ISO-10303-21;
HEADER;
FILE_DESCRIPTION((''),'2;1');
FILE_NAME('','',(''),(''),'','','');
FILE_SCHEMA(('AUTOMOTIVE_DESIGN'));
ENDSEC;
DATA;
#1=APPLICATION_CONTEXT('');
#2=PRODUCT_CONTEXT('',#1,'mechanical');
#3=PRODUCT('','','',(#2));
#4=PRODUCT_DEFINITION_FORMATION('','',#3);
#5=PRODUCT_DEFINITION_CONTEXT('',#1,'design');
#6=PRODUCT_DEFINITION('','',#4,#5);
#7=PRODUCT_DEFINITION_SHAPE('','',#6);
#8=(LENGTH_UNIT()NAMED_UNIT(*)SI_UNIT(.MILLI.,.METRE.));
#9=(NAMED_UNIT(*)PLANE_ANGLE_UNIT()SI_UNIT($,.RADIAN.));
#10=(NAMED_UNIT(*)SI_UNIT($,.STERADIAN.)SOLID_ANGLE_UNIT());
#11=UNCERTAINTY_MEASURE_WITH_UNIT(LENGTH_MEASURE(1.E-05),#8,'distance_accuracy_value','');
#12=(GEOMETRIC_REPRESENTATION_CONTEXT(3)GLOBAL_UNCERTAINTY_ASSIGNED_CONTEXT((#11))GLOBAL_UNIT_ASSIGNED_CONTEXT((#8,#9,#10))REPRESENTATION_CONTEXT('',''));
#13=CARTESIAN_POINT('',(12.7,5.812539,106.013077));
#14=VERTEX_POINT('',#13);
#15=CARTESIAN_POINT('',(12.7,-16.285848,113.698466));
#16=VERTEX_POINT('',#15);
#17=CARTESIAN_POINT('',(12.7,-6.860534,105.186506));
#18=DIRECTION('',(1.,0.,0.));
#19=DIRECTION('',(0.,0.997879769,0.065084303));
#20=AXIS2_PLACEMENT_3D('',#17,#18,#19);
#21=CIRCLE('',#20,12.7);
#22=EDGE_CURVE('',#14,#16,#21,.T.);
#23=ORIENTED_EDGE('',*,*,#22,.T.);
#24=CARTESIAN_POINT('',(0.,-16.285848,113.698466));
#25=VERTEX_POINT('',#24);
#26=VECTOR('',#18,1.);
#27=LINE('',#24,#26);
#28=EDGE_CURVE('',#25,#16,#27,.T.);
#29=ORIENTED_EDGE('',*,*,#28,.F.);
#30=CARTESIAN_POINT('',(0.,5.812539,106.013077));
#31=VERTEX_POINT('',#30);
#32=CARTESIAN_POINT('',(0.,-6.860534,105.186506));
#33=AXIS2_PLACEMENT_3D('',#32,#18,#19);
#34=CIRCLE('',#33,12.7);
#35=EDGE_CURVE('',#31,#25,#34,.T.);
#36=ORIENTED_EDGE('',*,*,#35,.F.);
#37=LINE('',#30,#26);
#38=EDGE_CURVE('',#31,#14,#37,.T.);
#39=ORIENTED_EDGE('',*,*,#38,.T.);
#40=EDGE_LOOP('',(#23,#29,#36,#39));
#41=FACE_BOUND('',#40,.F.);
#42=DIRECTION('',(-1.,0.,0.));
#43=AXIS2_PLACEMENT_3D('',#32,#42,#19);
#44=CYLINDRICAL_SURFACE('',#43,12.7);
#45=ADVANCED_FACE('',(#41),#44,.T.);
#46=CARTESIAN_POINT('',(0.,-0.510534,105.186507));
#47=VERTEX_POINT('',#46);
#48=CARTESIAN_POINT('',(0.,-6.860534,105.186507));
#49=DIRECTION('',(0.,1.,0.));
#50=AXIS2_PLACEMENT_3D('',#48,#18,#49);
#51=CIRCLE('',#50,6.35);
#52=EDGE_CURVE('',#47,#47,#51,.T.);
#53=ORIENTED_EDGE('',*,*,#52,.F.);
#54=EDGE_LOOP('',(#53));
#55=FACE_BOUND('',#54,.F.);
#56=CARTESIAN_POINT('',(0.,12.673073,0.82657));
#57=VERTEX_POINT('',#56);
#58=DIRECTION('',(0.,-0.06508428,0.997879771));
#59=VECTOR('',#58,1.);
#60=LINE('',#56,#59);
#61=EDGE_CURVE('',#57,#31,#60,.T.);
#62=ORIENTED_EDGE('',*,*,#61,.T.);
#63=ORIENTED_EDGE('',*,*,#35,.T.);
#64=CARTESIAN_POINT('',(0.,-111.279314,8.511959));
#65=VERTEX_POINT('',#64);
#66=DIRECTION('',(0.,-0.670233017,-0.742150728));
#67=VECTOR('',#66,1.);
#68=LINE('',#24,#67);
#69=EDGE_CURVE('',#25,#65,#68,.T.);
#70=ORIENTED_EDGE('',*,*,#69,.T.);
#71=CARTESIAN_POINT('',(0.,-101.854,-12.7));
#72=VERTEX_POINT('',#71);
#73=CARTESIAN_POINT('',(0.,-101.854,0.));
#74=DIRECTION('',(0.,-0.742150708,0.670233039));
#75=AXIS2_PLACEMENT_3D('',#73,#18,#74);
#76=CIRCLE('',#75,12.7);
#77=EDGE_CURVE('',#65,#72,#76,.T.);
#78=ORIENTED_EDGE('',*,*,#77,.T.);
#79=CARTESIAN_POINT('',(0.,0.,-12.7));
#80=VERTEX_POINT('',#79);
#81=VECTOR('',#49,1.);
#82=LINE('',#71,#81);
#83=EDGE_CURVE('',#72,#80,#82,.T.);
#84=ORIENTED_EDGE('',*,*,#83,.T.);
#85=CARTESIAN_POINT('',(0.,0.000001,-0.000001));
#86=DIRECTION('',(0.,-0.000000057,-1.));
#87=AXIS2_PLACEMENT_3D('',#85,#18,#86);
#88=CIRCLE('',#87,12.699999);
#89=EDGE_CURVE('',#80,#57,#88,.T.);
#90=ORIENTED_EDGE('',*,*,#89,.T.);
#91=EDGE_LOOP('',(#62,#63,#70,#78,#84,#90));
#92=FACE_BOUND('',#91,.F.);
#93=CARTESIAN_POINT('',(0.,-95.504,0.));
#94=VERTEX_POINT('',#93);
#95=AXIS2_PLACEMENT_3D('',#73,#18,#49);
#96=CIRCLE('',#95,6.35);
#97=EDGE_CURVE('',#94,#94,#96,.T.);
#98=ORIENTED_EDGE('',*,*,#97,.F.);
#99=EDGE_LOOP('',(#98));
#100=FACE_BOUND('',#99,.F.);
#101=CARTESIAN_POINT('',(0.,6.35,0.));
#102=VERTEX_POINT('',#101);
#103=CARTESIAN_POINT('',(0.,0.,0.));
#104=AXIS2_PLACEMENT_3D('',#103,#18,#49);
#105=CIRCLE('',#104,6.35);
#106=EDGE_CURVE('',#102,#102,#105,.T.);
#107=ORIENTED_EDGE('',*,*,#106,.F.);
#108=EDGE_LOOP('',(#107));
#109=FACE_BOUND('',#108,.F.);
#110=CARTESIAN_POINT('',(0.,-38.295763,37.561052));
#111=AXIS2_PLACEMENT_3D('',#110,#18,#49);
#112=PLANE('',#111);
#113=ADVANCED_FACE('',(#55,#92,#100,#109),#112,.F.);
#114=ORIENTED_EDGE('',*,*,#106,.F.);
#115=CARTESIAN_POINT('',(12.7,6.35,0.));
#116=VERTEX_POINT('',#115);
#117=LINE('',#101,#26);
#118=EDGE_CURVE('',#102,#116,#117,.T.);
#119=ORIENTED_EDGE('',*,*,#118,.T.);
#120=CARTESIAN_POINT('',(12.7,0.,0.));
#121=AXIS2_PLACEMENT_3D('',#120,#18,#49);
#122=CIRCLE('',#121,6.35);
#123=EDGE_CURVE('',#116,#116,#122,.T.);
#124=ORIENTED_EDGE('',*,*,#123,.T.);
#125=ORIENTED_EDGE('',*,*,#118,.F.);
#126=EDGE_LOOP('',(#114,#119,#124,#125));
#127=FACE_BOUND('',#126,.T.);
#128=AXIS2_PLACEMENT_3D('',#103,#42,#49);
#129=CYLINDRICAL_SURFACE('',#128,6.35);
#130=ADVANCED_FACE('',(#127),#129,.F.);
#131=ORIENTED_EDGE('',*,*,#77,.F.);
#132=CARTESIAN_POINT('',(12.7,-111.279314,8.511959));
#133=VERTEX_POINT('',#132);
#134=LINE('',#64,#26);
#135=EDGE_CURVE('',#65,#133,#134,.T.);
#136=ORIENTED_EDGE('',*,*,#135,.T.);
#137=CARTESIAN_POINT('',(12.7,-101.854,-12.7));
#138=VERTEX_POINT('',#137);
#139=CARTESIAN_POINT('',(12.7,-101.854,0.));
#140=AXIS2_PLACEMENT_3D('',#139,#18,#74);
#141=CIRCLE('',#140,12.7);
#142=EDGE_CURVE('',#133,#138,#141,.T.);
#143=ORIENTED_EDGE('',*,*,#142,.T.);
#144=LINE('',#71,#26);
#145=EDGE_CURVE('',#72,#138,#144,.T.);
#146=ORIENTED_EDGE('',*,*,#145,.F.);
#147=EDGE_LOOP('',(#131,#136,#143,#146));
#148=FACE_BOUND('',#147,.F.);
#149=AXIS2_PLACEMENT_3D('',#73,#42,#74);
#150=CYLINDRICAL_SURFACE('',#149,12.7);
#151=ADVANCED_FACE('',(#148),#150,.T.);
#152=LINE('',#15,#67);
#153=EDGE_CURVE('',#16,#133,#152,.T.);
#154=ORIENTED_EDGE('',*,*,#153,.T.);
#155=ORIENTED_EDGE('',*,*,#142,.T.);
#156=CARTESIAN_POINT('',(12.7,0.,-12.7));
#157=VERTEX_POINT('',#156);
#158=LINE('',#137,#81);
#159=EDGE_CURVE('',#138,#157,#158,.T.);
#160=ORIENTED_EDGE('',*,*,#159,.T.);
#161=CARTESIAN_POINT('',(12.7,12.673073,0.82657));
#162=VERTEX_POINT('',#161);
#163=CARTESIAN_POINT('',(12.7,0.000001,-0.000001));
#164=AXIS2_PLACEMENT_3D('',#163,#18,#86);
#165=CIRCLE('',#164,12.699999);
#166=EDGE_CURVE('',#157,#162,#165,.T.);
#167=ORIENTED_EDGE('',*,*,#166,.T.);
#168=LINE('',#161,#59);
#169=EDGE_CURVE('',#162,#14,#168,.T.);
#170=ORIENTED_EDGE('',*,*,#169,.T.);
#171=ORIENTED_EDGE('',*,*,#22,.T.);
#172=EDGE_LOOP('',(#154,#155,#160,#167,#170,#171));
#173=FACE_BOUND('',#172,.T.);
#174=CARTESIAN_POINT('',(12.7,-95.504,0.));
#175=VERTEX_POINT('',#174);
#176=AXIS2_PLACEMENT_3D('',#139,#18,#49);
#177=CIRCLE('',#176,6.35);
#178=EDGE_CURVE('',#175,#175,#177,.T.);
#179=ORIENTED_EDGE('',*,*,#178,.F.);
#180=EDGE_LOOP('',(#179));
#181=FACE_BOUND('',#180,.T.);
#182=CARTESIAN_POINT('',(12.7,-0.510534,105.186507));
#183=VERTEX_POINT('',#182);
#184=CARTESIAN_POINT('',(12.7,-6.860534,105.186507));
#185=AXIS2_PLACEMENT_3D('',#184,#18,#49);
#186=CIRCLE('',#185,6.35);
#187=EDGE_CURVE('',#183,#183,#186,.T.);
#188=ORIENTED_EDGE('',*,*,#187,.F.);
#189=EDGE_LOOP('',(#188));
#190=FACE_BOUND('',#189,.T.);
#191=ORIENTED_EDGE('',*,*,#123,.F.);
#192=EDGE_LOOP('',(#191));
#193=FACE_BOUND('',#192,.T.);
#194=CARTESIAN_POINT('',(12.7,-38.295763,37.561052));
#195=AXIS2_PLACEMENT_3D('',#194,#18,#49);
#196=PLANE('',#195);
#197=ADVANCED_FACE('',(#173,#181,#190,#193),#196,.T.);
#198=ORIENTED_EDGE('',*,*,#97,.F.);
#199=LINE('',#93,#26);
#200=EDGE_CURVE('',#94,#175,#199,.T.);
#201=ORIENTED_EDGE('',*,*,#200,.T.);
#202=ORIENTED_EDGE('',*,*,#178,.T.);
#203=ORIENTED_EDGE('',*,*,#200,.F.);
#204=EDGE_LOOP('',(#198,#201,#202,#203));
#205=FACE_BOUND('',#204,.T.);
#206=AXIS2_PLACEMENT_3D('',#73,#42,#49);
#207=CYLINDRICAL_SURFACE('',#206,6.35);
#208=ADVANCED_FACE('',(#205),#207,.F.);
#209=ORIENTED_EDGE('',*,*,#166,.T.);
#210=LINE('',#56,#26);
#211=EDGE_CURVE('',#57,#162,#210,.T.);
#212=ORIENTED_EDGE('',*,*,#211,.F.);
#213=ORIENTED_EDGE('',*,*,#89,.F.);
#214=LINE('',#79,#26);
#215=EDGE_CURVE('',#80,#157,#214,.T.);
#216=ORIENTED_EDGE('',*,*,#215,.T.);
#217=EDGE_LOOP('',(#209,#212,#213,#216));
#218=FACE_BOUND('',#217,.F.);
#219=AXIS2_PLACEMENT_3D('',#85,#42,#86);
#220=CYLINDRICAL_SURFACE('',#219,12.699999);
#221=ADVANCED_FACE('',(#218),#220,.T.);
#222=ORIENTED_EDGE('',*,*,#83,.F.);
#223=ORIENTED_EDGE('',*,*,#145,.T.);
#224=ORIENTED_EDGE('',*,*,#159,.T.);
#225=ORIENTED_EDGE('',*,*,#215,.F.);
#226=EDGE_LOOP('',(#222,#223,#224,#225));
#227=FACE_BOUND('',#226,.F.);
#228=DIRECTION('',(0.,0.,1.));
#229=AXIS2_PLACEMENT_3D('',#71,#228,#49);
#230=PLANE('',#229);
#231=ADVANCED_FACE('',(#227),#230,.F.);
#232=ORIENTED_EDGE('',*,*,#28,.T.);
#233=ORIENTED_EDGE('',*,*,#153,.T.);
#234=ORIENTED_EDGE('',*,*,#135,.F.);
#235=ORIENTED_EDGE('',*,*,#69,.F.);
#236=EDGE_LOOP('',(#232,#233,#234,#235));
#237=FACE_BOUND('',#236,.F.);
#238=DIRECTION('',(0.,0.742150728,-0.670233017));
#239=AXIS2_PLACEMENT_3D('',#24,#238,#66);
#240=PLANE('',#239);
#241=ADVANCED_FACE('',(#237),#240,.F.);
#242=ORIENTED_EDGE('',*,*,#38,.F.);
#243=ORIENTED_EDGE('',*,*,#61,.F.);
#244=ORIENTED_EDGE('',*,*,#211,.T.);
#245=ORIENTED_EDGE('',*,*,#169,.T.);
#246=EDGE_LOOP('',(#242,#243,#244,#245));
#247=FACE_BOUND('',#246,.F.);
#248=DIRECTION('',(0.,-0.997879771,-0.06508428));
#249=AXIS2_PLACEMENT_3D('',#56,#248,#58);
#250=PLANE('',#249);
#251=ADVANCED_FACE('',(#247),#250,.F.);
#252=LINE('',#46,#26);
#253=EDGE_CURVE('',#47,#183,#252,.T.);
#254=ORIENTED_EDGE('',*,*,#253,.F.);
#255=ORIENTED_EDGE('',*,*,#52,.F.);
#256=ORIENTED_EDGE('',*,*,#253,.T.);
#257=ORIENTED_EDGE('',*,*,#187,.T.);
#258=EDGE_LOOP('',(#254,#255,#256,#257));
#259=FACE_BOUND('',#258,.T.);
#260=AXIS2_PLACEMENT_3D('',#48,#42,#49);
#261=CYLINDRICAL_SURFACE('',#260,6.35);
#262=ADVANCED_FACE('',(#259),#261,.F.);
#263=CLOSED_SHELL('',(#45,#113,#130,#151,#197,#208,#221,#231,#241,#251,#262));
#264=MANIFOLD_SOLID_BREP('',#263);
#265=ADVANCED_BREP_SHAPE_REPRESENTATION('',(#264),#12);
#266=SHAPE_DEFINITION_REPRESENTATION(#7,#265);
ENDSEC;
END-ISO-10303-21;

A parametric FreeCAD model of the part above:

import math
import FreeCAD as App
import Part
import Sketcher

V = App.Vector
Q = App.Units.Quantity

doc = App.newDocument("Part")
body = doc.addObject("PartDesign::Body", "Body")

# Sketch on YZ plane
sketch1 = body.newObject("Sketcher::SketchObject", "Sketch")
sketch1.AttachmentSupport = (doc.getObject("YZ_Plane"), [""])
sketch1.MapMode = "FlatFace"
sketch1.addGeometry(Part.ArcOfCircle(Part.Circle(V(-7, 105, 0), V(0, 0, 1), 13), math.radians(4), math.radians(138)), False)
sketch1.addGeometry(Part.LineSegment(V(-16, 114, 0), V(-111, 9, 0)), False)
sketch1.addGeometry(Part.ArcOfCircle(Part.Circle(V(-102, 0, 0), V(0, 0, 1), 13), math.radians(138), math.radians(270)), False)
sketch1.addGeometry(Part.LineSegment(V(-102, -13, 0), V(0, -13, 0)), False)
sketch1.addGeometry(Part.ArcOfCircle(Part.Circle(V(0, 0, 0), V(0, 0, 1), 13), math.radians(-90), math.radians(4)), False)
sketch1.addGeometry(Part.LineSegment(V(13, 1, 0), V(6, 106, 0)), False)
sketch1.addGeometry(Part.Circle(V(-102, 0, 0), V(0, 0, 1), 6), False)
sketch1.addGeometry(Part.Circle(V(0, 0, 0), V(0, 0, 1), 6), False)
sketch1.addGeometry(Part.Circle(V(-7, 105, 0), V(0, 0, 1), 6), False)
sketch1.addConstraint(Sketcher.Constraint("Tangent", 0, 2, 1, 1))
sketch1.addConstraint(Sketcher.Constraint("Tangent", 1, 2, 2, 1))
sketch1.addConstraint(Sketcher.Constraint("Tangent", 2, 2, 3, 1))
sketch1.addConstraint(Sketcher.Constraint("Tangent", 3, 2, 4, 1))
sketch1.addConstraint(Sketcher.Constraint("Tangent", 4, 2, 5, 1))
sketch1.addConstraint(Sketcher.Constraint("Tangent", 5, 2, 0, 1))
sketch1.addConstraint(Sketcher.Constraint("Horizontal", 3))
sketch1.addConstraint(Sketcher.Constraint("Coincident", 4, 3, -1, 1))
sketch1.addConstraint(Sketcher.Constraint("Coincident", 7, 3, -1, 1))
sketch1.addConstraint(Sketcher.Constraint("Coincident", 6, 3, 2, 3))
sketch1.addConstraint(Sketcher.Constraint("Coincident", 8, 3, 0, 3))
sketch1.addConstraint(Sketcher.Constraint("Equal", 0, 2))
sketch1.addConstraint(Sketcher.Constraint("Equal", 2, 4))
sketch1.addConstraint(Sketcher.Constraint("Equal", 6, 7))
sketch1.addConstraint(Sketcher.Constraint("Equal", 7, 8))
sketch1.addConstraint(Sketcher.Constraint("Diameter", 6, Q("0.5 in")))
sketch1.addConstraint(Sketcher.Constraint("Radius", 0, Q("0.5 in")))
sketch1.addConstraint(Sketcher.Constraint("DistanceX", 3, 1, 3, 2, Q("4.01 in")))
sketch1.addConstraint(Sketcher.Constraint("Distance", 1, Q("5.58 in")))
sketch1.addConstraint(Sketcher.Constraint("Distance", 5, Q("4.15 in")))
pad1 = body.newObject("PartDesign::Pad", "Pad")
pad1.Profile = sketch1
pad1.Length = Q("0.5 in")

doc.recompute()
